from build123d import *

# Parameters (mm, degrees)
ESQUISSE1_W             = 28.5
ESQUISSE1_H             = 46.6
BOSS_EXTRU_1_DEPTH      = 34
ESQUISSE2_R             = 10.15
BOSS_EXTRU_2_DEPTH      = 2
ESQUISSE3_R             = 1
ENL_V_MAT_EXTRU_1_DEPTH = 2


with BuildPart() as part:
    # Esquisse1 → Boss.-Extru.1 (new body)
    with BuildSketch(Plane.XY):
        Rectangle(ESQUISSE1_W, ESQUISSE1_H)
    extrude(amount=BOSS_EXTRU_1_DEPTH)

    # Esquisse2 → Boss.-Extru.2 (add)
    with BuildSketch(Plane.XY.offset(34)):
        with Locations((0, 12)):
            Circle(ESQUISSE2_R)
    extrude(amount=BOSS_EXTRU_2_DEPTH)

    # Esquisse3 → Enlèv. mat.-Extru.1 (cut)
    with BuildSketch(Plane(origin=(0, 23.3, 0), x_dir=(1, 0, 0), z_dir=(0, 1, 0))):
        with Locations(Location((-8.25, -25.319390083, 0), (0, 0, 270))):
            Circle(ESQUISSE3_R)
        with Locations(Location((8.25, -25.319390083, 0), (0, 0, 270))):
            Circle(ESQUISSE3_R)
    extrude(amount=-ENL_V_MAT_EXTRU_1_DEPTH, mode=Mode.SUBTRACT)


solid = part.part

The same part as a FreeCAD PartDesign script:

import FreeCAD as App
import Part
import Sketcher
Q = App.Units.Quantity


def add_polygon(sketch, points):
    """Adds a closed chain of lines whose ends are joined by coincident constraints."""
    first, n = sketch.GeometryCount, len(points)
    for a, b in zip(points, points[1:] + points[:1]):
        sketch.addGeometry(Part.LineSegment(App.Vector(*a, 0), App.Vector(*b, 0)), False)
    for i in range(n):
        sketch.addConstraint(Sketcher.Constraint("Coincident", first + i, 2, first + (i + 1) % n, 1))

doc = App.newDocument("Part")
params = doc.addObject("Spreadsheet::Sheet", "Params")
for row, (alias, value) in enumerate([
    ("sketch1_width", "28.5 mm"),
    ("sketch1_height", "46.6 mm"),
    ("pad1_length", "34 mm"),
    ("sketch2_diameter", "20.3 mm"),
    ("pad2_length", "2 mm"),
    ("sketch3_diameter", "2 mm"),
    ("pocket1_length", "2 mm"),
], start=1):
    params.set(f"A{row}", alias)
    params.set(f"B{row}", "=" + value)
    params.setAlias(f"B{row}", alias)

body = doc.addObject("PartDesign::Body", "Body")

sketch1 = body.newObject("Sketcher::SketchObject", "Sketch")
sketch1.AttachmentSupport = (doc.getObject("XY_Plane"), [""])
sketch1.MapMode = "FlatFace"
add_polygon(sketch1, [(-14, 23), (-14, -23), (14, -23), (14, 23)])
sketch1.addConstraint(Sketcher.Constraint("Vertical", 0))
sketch1.addConstraint(Sketcher.Constraint("Horizontal", 1))
sketch1.addConstraint(Sketcher.Constraint("Vertical", 2))
sketch1.addConstraint(Sketcher.Constraint("Horizontal", 3))
sketch1.addConstraint(Sketcher.Constraint("Symmetric", 0, 2, 2, 2, -1, 1))
sketch1.addConstraint(Sketcher.Constraint("DistanceX", 1, 1, 1, 2, Q("28.5 mm")))
sketch1.addConstraint(Sketcher.Constraint("DistanceY", 0, 2, 0, 1, Q("46.6 mm")))
sketch1.setExpression("Constraints[9]", "Params.sketch1_width")
sketch1.setExpression("Constraints[10]", "Params.sketch1_height")
pad1 = body.newObject("PartDesign::Pad", "Pad")
pad1.Profile = sketch1
pad1.setExpression("Length", "Params.pad1_length")

sketch2 = body.newObject("Sketcher::SketchObject", "Sketch001")
sketch2.AttachmentSupport = (doc.getObject("XY_Plane"), [""])
sketch2.MapMode = "FlatFace"
sketch2.AttachmentOffset = App.Placement(App.Vector(0, 0, 34), App.Rotation())
sketch2.addGeometry(Part.Circle(App.Vector(0, 12, 0), App.Vector(0, 0, 1), 10), False)
sketch2.addConstraint(Sketcher.Constraint("PointOnObject", 0, 3, -2))
sketch2.addConstraint(Sketcher.Constraint("Diameter", 0, Q("20.3 mm")))
sketch2.addConstraint(Sketcher.Constraint("DistanceY", -1, 1, 0, 3, Q("12 mm")))
sketch2.setExpression("Constraints[1]", "Params.sketch2_diameter")
pad2 = body.newObject("PartDesign::Pad", "Pad001")
pad2.Profile = sketch2
pad2.setExpression("Length", "Params.pad2_length")

sketch3 = body.newObject("Sketcher::SketchObject", "Sketch002")
sketch3.AttachmentSupport = (doc.getObject("XZ_Plane"), [""])
sketch3.MapMode = "FlatFace"
sketch3.AttachmentOffset = App.Placement(App.Vector(0, 0, -23.3), App.Rotation())
sketch3.addGeometry(Part.Circle(App.Vector(-8.2, 25.3, 0), App.Vector(0, 0, 1), 1), False)
sketch3.addGeometry(Part.Circle(App.Vector(8.2, 25.3, 0), App.Vector(0, 0, 1), 1), False)
sketch3.addConstraint(Sketcher.Constraint("Equal", 0, 1))
sketch3.addConstraint(Sketcher.Constraint("Symmetric", 0, 3, 1, 3, -2))
sketch3.addConstraint(Sketcher.Constraint("Diameter", 0, Q("2 mm")))
sketch3.addConstraint(Sketcher.Constraint("DistanceX", 0, 3, 1, 3, Q("16.5 mm")))
sketch3.addConstraint(Sketcher.Constraint("DistanceY", -1, 1, 0, 3, Q("25.31939 mm")))
sketch3.setExpression("Constraints[2]", "Params.sketch3_diameter")
pocket1 = body.newObject("PartDesign::Pocket", "Pocket")
pocket1.Profile = sketch3
pocket1.setExpression("Length", "Params.pocket1_length")
pocket1.Reversed = True

doc.recompute()
